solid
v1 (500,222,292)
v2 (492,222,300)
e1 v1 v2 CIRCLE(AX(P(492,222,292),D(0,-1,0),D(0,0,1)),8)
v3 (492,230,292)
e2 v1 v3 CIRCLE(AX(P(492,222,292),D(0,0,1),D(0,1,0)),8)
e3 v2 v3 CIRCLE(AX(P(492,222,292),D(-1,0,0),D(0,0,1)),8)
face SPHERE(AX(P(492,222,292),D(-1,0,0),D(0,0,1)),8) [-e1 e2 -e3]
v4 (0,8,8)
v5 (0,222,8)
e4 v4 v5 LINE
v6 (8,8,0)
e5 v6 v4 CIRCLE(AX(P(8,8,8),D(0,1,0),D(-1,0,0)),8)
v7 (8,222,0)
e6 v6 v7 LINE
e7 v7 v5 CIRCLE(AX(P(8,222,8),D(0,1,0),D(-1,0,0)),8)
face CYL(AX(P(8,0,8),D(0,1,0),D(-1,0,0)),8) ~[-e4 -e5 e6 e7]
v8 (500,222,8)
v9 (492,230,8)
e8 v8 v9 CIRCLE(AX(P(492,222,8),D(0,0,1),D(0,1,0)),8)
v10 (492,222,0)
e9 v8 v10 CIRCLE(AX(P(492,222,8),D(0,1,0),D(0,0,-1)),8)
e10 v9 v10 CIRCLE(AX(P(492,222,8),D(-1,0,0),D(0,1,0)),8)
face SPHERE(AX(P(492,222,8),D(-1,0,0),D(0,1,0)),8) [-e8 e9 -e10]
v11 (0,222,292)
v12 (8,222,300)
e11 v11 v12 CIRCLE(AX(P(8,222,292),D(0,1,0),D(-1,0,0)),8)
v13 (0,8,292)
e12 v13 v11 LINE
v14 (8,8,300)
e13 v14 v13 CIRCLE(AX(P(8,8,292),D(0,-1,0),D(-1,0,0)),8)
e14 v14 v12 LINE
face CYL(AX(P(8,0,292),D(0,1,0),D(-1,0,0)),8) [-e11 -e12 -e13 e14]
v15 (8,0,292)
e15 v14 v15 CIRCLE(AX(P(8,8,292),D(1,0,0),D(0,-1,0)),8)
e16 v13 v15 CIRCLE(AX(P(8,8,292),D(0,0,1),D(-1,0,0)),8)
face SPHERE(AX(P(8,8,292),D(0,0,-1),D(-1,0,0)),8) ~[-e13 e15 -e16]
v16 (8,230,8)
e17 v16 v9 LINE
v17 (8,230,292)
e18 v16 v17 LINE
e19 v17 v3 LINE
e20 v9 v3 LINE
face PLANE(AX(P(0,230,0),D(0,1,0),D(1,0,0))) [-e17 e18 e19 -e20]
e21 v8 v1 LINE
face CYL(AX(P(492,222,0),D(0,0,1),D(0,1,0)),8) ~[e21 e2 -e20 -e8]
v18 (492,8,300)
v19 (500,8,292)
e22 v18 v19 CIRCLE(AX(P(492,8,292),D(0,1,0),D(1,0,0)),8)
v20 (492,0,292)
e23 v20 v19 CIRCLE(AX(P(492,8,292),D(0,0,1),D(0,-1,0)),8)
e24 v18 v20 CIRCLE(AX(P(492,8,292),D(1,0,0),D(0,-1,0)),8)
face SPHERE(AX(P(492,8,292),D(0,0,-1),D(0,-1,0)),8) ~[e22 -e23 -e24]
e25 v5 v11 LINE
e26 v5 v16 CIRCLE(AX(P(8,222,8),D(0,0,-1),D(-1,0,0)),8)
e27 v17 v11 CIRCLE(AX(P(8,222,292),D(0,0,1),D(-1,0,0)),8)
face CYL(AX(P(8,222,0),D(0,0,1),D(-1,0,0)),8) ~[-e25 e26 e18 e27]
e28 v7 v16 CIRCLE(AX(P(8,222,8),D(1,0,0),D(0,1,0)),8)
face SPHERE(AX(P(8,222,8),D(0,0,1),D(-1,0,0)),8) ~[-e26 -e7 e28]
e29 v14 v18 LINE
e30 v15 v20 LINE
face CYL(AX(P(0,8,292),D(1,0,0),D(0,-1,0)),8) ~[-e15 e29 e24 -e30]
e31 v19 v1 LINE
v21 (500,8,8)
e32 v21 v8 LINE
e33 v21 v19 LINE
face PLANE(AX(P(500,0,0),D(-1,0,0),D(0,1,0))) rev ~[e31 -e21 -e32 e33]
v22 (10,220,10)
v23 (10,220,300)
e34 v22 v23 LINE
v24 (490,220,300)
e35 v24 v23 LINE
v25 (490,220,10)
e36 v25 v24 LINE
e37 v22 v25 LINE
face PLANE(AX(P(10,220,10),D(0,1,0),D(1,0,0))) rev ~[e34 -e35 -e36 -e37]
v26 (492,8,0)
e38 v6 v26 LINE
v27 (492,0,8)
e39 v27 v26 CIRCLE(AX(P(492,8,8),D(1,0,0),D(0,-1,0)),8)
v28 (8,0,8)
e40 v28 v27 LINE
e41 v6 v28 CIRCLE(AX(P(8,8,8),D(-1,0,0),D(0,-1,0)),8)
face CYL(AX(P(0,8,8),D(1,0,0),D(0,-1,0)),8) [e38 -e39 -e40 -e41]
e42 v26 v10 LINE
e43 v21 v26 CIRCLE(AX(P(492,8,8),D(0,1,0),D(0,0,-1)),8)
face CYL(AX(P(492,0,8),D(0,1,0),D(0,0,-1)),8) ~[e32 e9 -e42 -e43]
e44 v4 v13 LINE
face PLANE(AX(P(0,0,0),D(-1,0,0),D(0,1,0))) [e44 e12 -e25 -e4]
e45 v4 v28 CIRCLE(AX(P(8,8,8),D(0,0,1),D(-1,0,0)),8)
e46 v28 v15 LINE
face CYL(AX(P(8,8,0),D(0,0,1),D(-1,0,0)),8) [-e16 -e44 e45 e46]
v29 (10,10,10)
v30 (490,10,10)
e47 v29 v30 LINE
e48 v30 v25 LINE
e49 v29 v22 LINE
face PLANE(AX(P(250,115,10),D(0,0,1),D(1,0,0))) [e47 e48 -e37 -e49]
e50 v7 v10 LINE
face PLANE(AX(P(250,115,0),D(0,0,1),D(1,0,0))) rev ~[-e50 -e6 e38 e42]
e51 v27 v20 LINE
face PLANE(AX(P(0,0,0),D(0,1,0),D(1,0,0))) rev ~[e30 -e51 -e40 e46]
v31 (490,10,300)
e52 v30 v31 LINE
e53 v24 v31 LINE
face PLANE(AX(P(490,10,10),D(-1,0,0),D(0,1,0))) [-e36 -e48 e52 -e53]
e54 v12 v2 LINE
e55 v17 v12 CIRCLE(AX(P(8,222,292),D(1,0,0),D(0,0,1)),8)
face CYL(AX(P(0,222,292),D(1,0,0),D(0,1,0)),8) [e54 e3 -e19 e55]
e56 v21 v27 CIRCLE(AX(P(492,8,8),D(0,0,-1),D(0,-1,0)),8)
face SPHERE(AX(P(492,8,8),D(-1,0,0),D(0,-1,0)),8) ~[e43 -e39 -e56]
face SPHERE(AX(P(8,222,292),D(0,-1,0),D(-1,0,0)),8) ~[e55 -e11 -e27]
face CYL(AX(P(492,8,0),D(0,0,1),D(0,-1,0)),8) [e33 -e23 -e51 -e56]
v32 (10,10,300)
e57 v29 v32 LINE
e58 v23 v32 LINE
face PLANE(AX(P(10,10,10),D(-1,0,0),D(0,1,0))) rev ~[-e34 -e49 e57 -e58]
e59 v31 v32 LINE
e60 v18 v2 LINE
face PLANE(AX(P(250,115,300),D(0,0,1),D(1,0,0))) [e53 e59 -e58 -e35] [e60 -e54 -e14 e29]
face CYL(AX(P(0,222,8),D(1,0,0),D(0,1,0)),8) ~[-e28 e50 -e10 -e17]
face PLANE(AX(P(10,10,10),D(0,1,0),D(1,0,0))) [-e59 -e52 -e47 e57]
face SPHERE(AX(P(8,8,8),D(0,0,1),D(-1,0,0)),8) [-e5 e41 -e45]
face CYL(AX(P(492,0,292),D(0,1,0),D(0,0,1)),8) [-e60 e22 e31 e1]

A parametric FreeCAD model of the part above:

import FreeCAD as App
import Part
import Sketcher
from FreeCAD import Vector
Q = App.Units.Quantity


def edges_at(feature, points):
    """Names of the edges that pass closest to the given points."""
    edges = feature.Shape.Edges
    near = lambda p: min(range(len(edges)), key=lambda i: edges[i].distToShape(Part.Vertex(*p))[0])
    return sorted({f"Edge{near(p) + 1}" for p in points})

doc = App.newDocument("Part")
params = doc.addObject("Spreadsheet::Sheet", "Params")
for row, (alias, value) in enumerate([
    ("sketch1_width", "480 mm"),
    ("sketch1_height", "210 mm"),
    ("pad1_length", "320 mm"),
    ("sketch2_width", "500 mm"),
    ("sketch2_height", "230 mm"),
    ("pad2_length", "300 mm"),
    ("fillet_radius", "8 mm"),
], start=1):
    params.set(f"A{row}", alias)
    params.set(f"B{row}", "=" + value)
    params.setAlias(f"B{row}", alias)

body = doc.addObject("PartDesign::Body", "Body")

# Sketch on XY plane
sketch1 = body.newObject("Sketcher::SketchObject", "Sketch")
sketch1.AttachmentSupport = (doc.getObject("XY_Plane"), [""])
sketch1.MapMode = "FlatFace"
sketch1.AttachmentOffset = App.Placement(Vector(0, 0, 10), App.Rotation())
sketch1.addGeometry(Part.LineSegment(Vector(10, 220, 0), Vector(10, 10, 0)), False)
sketch1.addGeometry(Part.LineSegment(Vector(10, 10, 0), Vector(490, 10, 0)), False)
sketch1.addGeometry(Part.LineSegment(Vector(490, 10, 0), Vector(490, 220, 0)), False)
sketch1.addGeometry(Part.LineSegment(Vector(490, 220, 0), Vector(10, 220, 0)), False)
sketch1.addConstraint(Sketcher.Constraint("Coincident", 0, 2, 1, 1))
sketch1.addConstraint(Sketcher.Constraint("Coincident", 1, 2, 2, 1))
sketch1.addConstraint(Sketcher.Constraint("Coincident", 2, 2, 3, 1))
sketch1.addConstraint(Sketcher.Constraint("Coincident", 3, 2, 0, 1))
sketch1.addConstraint(Sketcher.Constraint("Vertical", 0))
sketch1.addConstraint(Sketcher.Constraint("Horizontal", 1))
sketch1.addConstraint(Sketcher.Constraint("Vertical", 2))
sketch1.addConstraint(Sketcher.Constraint("Horizontal", 3))
sketch1.addConstraint(Sketcher.Constraint("DistanceX", 1, 1, 1, 2, Q("480 mm")))
sketch1.addConstraint(Sketcher.Constraint("DistanceY", 0, 2, 0, 1, Q("210 mm")))
sketch1.addConstraint(Sketcher.Constraint("DistanceX", -1, 1, 0, 2, Q("10 mm")))
sketch1.addConstraint(Sketcher.Constraint("DistanceY", -1, 1, 0, 2, Q("10 mm")))
sketch1.setExpression("Constraints[8]", "Params.sketch1_width")
sketch1.setExpression("Constraints[9]", "Params.sketch1_height")
pad1 = body.newObject("PartDesign::Pad", "Pad")
pad1.Profile = sketch1
pad1.setExpression("Length", "Params.pad1_length")
body2 = doc.addObject("PartDesign::Body", "Body001")

# Sketch on XY plane
sketch2 = body2.newObject("Sketcher::SketchObject", "Sketch001")
sketch2.AttachmentSupport = (doc.getObject("XY_Plane001"), [""])
sketch2.MapMode = "FlatFace"
sketch2.addGeometry(Part.LineSegment(Vector(0, 230, 0), Vector(0, 0, 0)), False)
sketch2.addGeometry(Part.LineSegment(Vector(0, 0, 0), Vector(500, 0, 0)), False)
sketch2.addGeometry(Part.LineSegment(Vector(500, 0, 0), Vector(500, 230, 0)), False)
sketch2.addGeometry(Part.LineSegment(Vector(500, 230, 0), Vector(0, 230, 0)), False)
sketch2.addConstraint(Sketcher.Constraint("Coincident", 0, 2, 1, 1))
sketch2.addConstraint(Sketcher.Constraint("Coincident", 1, 2, 2, 1))
sketch2.addConstraint(Sketcher.Constraint("Coincident", 2, 2, 3, 1))
sketch2.addConstraint(Sketcher.Constraint("Coincident", 3, 2, 0, 1))
sketch2.addConstraint(Sketcher.Constraint("Vertical", 0))
sketch2.addConstraint(Sketcher.Constraint("Horizontal", 1))
sketch2.addConstraint(Sketcher.Constraint("Vertical", 2))
sketch2.addConstraint(Sketcher.Constraint("Horizontal", 3))
sketch2.addConstraint(Sketcher.Constraint("Coincident", 0, 2, -1, 1))
sketch2.addConstraint(Sketcher.Constraint("DistanceX", 1, 1, 1, 2, Q("500 mm")))
sketch2.addConstraint(Sketcher.Constraint("DistanceY", 0, 2, 0, 1, Q("230 mm")))
sketch2.setExpression("Constraints[9]", "Params.sketch2_width")
sketch2.setExpression("Constraints[10]", "Params.sketch2_height")
pad2 = body2.newObject("PartDesign::Pad", "Pad001")
pad2.Profile = sketch2
pad2.setExpression("Length", "Params.pad2_length")
doc.recompute()

boolean = body2.newObject("PartDesign::Boolean", "Boolean")
boolean.Type = "Cut"
boolean.addObjects([body])
doc.recompute()

fillet = body2.newObject("PartDesign::Fillet", "Fillet")
fillet.Base = (boolean, edges_at(boolean, [
    (0, 0, 150),
    (0, 115, 300),
    (0, 230, 150),
    (0, 115, 0),
    (250, 0, 0),
    (500, 0, 150),
    (250, 0, 300),
    (250, 230, 300),
    (500, 115, 300),
    (250, 230, 0),
    (500, 230, 150),
    (500, 115, 0),
]))
fillet.setExpression("Radius", "Params.fillet_radius")

doc.recompute()
